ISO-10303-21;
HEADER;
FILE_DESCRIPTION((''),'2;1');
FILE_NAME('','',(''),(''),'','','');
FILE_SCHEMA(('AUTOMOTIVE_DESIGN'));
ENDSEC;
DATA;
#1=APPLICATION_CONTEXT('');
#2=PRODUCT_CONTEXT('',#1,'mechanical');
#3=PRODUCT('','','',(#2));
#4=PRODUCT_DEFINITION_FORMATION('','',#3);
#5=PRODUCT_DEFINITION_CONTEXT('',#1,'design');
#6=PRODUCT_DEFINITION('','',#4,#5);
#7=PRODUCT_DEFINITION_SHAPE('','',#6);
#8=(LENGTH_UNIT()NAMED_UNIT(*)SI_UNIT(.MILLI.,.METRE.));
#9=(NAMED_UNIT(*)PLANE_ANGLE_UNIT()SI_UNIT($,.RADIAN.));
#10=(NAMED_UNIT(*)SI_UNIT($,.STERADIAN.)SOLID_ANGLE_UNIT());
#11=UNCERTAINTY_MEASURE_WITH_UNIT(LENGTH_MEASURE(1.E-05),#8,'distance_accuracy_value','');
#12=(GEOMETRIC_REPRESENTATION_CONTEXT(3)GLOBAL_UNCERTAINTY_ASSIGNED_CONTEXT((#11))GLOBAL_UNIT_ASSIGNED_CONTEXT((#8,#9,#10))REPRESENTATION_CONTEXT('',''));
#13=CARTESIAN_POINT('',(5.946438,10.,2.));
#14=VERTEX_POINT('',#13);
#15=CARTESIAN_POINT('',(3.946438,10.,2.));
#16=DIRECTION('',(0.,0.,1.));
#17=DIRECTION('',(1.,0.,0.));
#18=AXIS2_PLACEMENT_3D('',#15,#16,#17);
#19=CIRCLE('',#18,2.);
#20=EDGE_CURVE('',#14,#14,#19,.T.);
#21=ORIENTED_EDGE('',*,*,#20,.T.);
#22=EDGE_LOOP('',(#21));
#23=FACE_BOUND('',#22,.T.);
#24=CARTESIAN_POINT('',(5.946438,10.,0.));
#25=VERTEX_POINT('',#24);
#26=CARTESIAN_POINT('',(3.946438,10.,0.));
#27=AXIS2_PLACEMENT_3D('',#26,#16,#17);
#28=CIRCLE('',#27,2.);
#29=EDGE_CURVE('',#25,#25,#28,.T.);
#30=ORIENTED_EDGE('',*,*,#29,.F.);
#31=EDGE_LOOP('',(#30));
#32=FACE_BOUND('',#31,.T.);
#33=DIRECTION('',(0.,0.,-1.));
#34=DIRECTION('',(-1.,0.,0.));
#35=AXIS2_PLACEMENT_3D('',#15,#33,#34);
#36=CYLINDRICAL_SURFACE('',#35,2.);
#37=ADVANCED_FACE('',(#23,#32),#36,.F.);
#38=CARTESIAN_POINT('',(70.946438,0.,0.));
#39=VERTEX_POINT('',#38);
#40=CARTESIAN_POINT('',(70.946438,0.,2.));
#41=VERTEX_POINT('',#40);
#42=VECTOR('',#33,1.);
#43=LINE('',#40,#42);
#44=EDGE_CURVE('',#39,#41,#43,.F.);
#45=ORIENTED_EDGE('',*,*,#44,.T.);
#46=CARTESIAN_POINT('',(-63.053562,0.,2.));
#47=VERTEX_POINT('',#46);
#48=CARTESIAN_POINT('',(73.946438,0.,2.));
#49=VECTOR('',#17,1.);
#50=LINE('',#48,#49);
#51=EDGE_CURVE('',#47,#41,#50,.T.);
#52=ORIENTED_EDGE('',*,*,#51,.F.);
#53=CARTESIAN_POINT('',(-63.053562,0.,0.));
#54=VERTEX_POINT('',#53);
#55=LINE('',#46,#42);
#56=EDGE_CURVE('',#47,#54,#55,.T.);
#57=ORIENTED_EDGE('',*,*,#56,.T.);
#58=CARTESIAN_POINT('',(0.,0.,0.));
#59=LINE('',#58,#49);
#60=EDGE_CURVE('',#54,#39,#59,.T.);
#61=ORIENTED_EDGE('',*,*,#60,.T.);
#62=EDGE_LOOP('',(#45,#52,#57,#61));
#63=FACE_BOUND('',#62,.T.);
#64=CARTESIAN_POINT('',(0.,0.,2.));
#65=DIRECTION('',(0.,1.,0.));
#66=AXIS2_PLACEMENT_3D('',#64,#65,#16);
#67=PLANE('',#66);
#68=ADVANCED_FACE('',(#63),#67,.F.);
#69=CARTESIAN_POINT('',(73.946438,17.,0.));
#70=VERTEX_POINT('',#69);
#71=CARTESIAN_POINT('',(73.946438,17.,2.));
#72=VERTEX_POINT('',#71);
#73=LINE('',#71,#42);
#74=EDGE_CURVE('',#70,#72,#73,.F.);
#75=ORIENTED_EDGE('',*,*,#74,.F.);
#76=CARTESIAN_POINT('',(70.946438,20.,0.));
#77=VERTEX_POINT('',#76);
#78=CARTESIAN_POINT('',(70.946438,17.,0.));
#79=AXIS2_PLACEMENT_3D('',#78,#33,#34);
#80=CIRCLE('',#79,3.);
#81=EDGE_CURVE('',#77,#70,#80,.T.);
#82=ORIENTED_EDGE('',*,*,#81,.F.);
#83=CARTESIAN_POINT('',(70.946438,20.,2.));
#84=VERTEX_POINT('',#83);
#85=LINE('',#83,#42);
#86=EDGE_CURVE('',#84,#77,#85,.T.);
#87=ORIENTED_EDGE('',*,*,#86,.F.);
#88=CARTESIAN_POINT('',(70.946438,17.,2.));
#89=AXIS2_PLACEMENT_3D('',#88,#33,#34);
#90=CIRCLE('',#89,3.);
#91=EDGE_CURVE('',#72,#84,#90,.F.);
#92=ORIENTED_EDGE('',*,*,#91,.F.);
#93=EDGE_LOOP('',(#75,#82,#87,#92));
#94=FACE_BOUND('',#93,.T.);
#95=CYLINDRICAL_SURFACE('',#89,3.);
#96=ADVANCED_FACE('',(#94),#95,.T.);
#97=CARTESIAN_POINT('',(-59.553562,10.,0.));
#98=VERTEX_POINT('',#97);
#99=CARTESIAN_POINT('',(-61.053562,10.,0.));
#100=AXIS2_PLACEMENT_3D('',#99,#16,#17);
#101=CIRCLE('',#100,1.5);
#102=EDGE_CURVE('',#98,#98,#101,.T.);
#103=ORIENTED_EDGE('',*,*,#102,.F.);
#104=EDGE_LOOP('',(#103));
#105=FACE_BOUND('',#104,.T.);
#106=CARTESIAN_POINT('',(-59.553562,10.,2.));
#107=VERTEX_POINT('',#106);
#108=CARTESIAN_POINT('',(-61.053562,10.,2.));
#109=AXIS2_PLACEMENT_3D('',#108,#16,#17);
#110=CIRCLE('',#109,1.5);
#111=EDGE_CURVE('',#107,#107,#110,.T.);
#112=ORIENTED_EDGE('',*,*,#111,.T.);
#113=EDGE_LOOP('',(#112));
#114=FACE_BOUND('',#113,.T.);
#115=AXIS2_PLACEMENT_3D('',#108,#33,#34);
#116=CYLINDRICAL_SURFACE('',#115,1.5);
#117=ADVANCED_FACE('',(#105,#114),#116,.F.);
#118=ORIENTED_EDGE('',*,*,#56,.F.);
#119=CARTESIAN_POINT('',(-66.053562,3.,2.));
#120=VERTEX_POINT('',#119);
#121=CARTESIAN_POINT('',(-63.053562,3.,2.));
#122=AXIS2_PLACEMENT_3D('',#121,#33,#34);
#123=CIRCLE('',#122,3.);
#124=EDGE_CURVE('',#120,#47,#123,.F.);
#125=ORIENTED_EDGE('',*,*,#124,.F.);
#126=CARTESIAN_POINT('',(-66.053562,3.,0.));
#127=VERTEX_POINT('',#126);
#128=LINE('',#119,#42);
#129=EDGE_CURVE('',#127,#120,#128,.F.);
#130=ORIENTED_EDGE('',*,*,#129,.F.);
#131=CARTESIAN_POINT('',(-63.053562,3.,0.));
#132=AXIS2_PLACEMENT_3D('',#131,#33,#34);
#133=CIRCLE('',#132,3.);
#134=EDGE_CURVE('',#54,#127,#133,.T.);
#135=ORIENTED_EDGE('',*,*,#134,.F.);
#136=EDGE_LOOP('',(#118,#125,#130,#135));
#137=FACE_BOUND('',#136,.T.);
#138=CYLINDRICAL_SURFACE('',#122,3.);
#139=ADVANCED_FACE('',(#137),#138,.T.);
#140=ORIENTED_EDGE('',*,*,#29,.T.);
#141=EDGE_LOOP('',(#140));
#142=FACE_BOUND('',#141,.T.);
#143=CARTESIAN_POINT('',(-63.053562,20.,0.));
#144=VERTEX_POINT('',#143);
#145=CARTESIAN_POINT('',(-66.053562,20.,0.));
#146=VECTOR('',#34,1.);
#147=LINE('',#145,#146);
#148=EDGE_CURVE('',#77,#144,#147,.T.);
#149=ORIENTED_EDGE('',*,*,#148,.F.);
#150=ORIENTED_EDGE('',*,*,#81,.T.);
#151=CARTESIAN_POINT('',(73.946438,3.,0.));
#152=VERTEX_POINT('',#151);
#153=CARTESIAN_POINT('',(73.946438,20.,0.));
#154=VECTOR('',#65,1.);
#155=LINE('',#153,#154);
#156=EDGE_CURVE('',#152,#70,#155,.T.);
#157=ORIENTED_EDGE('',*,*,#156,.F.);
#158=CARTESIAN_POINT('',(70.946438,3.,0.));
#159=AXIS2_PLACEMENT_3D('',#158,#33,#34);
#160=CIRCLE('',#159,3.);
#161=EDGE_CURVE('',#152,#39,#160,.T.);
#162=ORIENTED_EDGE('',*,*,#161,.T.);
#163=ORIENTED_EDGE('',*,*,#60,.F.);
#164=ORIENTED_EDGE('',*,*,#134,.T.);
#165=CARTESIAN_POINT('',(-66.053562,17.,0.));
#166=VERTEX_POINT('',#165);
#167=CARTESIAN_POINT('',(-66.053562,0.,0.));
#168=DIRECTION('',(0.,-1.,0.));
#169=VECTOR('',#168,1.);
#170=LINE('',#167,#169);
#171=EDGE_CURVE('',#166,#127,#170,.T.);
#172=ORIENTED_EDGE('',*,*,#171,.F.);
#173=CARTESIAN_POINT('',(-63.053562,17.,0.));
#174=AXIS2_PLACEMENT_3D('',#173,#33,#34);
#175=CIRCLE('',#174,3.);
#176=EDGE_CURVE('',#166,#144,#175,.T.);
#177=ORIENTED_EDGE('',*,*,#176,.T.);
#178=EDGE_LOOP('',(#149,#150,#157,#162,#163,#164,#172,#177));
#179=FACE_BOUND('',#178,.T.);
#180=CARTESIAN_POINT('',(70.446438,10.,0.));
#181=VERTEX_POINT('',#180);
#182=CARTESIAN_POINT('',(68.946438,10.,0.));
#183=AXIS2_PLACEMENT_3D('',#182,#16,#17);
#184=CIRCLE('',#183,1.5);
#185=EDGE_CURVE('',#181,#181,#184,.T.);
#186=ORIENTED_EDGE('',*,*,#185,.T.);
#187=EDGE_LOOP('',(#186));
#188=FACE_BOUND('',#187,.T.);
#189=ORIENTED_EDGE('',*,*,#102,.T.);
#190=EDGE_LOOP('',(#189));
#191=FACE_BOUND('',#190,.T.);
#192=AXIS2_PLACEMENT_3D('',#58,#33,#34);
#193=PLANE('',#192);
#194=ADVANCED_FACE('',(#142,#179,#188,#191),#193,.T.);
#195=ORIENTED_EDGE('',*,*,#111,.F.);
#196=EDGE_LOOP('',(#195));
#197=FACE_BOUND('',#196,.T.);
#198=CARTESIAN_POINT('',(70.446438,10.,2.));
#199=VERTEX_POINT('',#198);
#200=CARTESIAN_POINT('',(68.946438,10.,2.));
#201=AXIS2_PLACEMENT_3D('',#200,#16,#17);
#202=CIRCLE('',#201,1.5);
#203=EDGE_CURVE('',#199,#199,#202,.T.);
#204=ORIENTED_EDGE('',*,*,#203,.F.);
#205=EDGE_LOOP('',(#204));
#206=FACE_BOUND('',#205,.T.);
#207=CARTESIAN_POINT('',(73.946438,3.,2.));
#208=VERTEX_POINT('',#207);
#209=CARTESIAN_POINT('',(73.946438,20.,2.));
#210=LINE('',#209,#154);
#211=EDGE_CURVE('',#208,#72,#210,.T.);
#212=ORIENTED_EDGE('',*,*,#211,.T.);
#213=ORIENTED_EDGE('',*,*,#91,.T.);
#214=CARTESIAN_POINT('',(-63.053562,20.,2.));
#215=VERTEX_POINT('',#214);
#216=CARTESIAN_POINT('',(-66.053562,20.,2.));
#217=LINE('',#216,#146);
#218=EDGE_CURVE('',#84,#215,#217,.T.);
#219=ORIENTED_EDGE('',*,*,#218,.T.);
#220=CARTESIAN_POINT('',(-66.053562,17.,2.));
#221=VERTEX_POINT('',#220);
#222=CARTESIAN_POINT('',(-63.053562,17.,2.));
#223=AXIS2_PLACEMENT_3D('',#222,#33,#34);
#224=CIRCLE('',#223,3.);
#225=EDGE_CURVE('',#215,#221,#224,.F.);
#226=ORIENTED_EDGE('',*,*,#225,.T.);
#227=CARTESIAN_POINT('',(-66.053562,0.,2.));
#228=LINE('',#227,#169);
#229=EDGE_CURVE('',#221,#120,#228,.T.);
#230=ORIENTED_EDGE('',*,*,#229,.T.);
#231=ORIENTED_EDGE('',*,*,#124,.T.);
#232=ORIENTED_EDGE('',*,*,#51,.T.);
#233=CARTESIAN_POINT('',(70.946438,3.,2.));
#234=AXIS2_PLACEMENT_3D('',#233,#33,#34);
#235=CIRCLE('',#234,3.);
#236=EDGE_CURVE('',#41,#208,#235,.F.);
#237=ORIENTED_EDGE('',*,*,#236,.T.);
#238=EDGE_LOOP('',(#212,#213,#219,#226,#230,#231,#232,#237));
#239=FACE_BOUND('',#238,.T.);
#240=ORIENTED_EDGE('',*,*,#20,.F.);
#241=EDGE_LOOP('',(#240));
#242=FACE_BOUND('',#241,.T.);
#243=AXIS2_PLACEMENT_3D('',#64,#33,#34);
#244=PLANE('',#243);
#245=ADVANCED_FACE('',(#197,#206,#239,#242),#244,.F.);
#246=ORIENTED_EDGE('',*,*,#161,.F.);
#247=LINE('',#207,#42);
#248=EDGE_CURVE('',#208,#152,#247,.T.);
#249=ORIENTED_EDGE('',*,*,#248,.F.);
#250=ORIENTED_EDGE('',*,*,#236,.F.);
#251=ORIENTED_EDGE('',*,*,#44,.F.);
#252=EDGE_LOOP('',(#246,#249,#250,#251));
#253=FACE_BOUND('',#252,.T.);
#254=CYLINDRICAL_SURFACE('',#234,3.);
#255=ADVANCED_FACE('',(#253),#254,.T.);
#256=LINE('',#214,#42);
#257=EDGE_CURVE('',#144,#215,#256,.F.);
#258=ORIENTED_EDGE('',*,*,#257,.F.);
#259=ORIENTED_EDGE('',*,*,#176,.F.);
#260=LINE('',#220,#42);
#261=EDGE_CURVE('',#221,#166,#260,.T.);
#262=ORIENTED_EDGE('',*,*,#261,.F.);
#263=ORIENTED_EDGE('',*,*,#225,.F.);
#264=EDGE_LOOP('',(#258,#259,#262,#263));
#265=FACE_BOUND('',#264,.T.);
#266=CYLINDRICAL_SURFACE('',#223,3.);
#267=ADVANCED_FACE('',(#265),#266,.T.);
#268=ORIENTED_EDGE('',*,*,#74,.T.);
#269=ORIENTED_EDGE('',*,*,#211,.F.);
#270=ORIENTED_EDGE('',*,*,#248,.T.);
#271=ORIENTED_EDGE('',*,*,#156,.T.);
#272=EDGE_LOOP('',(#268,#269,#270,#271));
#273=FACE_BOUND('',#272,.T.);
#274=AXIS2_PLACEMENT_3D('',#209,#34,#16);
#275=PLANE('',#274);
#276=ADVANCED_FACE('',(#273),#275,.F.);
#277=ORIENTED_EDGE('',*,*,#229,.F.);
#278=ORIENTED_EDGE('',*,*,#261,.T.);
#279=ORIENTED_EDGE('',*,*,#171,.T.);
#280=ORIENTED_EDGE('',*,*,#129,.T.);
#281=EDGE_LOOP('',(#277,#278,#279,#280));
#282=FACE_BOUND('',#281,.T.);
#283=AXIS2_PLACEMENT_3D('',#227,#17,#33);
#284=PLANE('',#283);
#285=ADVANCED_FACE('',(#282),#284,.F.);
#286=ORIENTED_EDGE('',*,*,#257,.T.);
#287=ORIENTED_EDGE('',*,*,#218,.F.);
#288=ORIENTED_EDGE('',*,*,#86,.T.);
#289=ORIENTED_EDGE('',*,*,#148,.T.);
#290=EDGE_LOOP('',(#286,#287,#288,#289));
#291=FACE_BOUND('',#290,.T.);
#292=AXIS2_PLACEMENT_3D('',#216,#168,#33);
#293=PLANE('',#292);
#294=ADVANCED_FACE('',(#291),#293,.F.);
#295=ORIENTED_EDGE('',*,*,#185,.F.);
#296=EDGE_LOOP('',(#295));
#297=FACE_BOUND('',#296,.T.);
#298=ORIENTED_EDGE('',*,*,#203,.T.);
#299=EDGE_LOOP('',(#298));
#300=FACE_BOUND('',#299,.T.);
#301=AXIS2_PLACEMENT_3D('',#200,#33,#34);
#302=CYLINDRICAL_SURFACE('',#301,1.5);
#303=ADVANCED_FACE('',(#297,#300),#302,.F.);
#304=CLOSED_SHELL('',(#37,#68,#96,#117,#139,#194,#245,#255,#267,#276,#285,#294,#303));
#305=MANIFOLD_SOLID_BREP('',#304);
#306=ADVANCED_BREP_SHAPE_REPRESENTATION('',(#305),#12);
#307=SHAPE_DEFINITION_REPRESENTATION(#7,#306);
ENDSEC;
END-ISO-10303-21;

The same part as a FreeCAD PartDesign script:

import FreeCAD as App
import Part
import Sketcher
from FreeCAD import Vector


def edges_at(feature, points):
    """Names of the edges that pass closest to the given points."""
    edges = feature.Shape.Edges
    near = lambda p: min(range(len(edges)), key=lambda i: edges[i].distToShape(Part.Vertex(*p))[0])
    return sorted({f"Edge{near(p) + 1}" for p in points})

doc = App.newDocument("Part")
body = doc.addObject("PartDesign::Body", "Body")

sketch1 = body.newObject("Sketcher::SketchObject", "Sketch")
sketch1.AttachmentSupport = (doc.getObject("XY_Plane"), [""])
sketch1.MapMode = "FlatFace"
sketch1.addGeometry(Part.LineSegment(Vector(-66.1, 0, 0), Vector(73.9, 0, 0)), False)
sketch1.addGeometry(Part.LineSegment(Vector(73.9, 0, 0), Vector(73.9, 20, 0)), False)
sketch1.addGeometry(Part.LineSegment(Vector(73.9, 20, 0), Vector(-66.1, 20, 0)), False)
sketch1.addGeometry(Part.LineSegment(Vector(-66.1, 20, 0), Vector(-66.1, 0, 0)), False)
sketch1.addGeometry(Part.Circle(Vector(68.9, 10, 0), Vector(0, 0, 1), 1.5), False)
sketch1.addGeometry(Part.Circle(Vector(3.9, 10, 0), Vector(0, 0, 1), 2), False)
sketch1.addGeometry(Part.Circle(Vector(-61.1, 10, 0), Vector(0, 0, 1), 1.5), False)
sketch1.addConstraint(Sketcher.Constraint("Coincident", 0, 2, 1, 1))
sketch1.addConstraint(Sketcher.Constraint("Coincident", 1, 2, 2, 1))
sketch1.addConstraint(Sketcher.Constraint("Coincident", 2, 2, 3, 1))
sketch1.addConstraint(Sketcher.Constraint("Coincident", 3, 2, 0, 1))
sketch1.addConstraint(Sketcher.Constraint("Horizontal", 0))
sketch1.addConstraint(Sketcher.Constraint("Vertical", 1))
sketch1.addConstraint(Sketcher.Constraint("Horizontal", 2))
sketch1.addConstraint(Sketcher.Constraint("Vertical", 3))
sketch1.addConstraint(Sketcher.Constraint("Equal", 4, 6))
sketch1.addConstraint(Sketcher.Constraint("PointOnObject", 0, 2, -1))
sketch1.addConstraint(Sketcher.Constraint("Horizontal", 4, 3, 5, 3))
sketch1.addConstraint(Sketcher.Constraint("Horizontal", 5, 3, 6, 3))
sketch1.addConstraint(Sketcher.Constraint("Diameter", 4, 3.0))
sketch1.addConstraint(Sketcher.Constraint("Diameter", 5, 4.0))
sketch1.addConstraint(Sketcher.Constraint("DistanceX", 0, 1, 0, 2, 140.0))
sketch1.addConstraint(Sketcher.Constraint("DistanceY", 1, 1, 1, 2, 20.0))
sketch1.addConstraint(Sketcher.Constraint("DistanceY", -1, 1, 4, 3, 10.0))
sketch1.addConstraint(Sketcher.Constraint("DistanceX", 5, 3, 4, 3, 65.0))
sketch1.addConstraint(Sketcher.Constraint("DistanceX", 6, 3, 5, 3, 65.0))
sketch1.addConstraint(Sketcher.Constraint("DistanceX", 4, 3, 0, 2, 5.0))
sketch1.addConstraint(Sketcher.Constraint("DistanceX", -1, 1, 4, 3, 68.946438))
pad1 = body.newObject("PartDesign::Pad", "Pad")
pad1.Profile = sketch1
pad1.Length = 2
doc.recompute()

fillet = body.newObject("PartDesign::Fillet", "Fillet")
fillet.Base = (pad1, edges_at(pad1, [
    (-66.054, 0, 1),
    (-66.054, 20, 1),
    (73.946, 20, 1),
    (73.946, 0, 1),
]))
fillet.Radius = 3

doc.recompute()
